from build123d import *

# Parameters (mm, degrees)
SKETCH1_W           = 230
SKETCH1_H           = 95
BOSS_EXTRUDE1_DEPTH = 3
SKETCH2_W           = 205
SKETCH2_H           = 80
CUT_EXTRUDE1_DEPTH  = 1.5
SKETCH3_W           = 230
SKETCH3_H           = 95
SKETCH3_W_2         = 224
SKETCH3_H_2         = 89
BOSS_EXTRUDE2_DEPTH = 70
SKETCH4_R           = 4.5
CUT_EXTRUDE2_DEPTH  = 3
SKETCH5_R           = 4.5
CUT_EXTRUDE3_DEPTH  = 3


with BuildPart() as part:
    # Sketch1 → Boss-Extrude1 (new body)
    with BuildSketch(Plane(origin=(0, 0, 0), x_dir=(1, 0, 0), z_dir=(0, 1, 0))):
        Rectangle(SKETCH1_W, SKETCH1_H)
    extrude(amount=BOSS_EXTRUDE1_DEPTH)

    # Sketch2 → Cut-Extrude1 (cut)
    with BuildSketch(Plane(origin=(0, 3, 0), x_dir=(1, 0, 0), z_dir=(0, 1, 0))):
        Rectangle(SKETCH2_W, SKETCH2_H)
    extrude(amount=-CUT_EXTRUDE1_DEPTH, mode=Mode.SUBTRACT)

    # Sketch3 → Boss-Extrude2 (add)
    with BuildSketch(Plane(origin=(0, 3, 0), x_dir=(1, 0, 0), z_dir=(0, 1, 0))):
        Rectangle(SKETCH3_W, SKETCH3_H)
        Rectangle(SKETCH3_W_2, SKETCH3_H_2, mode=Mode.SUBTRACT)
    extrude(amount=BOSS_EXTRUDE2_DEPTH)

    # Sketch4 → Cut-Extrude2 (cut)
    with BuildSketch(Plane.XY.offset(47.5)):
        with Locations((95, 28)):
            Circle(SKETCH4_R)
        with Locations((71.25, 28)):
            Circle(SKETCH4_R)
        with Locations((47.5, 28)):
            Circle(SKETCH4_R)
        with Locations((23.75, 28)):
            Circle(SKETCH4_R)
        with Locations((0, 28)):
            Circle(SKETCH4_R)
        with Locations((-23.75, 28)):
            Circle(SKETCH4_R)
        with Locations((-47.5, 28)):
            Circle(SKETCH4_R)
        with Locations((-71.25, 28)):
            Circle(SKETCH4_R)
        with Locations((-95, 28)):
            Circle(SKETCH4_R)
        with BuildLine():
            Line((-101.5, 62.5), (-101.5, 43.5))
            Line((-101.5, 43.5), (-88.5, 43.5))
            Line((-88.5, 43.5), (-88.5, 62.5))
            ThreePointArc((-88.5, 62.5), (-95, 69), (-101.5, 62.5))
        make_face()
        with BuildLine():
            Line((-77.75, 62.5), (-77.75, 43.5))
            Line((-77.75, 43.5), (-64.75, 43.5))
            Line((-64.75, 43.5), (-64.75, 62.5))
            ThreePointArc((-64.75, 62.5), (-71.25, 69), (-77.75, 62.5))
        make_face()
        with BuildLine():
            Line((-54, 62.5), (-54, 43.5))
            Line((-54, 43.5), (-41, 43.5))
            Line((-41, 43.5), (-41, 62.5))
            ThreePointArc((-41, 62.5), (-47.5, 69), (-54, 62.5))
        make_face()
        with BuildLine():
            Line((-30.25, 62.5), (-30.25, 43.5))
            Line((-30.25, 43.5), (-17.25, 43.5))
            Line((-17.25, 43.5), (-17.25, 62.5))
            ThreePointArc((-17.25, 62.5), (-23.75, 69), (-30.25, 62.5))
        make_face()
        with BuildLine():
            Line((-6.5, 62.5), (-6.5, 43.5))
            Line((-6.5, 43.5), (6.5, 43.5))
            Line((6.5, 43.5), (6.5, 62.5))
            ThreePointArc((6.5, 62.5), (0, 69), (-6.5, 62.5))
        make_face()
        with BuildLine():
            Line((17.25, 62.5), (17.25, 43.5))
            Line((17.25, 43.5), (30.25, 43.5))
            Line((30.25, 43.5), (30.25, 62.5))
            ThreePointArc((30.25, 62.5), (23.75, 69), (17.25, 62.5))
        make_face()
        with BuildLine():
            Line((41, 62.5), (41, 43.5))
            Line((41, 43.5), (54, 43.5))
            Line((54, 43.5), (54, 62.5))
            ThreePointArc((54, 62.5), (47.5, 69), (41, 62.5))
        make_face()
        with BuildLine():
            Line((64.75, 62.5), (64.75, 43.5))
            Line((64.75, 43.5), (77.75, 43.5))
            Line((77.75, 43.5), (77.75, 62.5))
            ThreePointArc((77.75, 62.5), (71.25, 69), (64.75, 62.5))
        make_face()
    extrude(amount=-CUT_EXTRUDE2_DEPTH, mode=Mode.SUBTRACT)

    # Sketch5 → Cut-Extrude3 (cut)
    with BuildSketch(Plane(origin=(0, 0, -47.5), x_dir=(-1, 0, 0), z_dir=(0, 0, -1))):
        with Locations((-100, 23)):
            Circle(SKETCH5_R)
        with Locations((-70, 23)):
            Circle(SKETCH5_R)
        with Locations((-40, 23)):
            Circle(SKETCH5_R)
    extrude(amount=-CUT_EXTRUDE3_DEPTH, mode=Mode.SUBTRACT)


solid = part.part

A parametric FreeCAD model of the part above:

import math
import FreeCAD as App
import Part
import Sketcher
from FreeCAD import Vector

doc = App.newDocument("Part")
body = doc.addObject("PartDesign::Body", "Body")

# Sketch on XZ plane
sketch1 = body.newObject("Sketcher::SketchObject", "Sketch")
sketch1.AttachmentSupport = (doc.getObject("XZ_Plane"), [""])
sketch1.MapMode = "FlatFace"
sketch1.addGeometry([
    Part.LineSegment(Vector(-115, -48, 0), Vector(-115, 48, 0)),
    Part.LineSegment(Vector(-115, 48, 0), Vector(115, 48, 0)),
    Part.LineSegment(Vector(115, 48, 0), Vector(115, -48, 0)),
    Part.LineSegment(Vector(115, -48, 0), Vector(-115, -48, 0)),
], False)
sketch1.addConstraint([
    Sketcher.Constraint("Coincident", 0, 2, 1, 1),
    Sketcher.Constraint("Coincident", 1, 2, 2, 1),
    Sketcher.Constraint("Coincident", 2, 2, 3, 1),
    Sketcher.Constraint("Coincident", 3, 2, 0, 1),
    Sketcher.Constraint("Vertical", 0),
    Sketcher.Constraint("Horizontal", 1),
    Sketcher.Constraint("Vertical", 2),
    Sketcher.Constraint("Horizontal", 3),
    Sketcher.Constraint("Symmetric", 0, 2, 2, 2, -1, 1),
    Sketcher.Constraint("DistanceX", 1, 1, 1, 2, 230.0),
    Sketcher.Constraint("DistanceY", 0, 1, 0, 2, 95.0),
])
pad1 = body.newObject("PartDesign::Pad", "Pad")
pad1.Profile = sketch1
pad1.Length = 3
pad1.Reversed = True

# Sketch on XZ plane
sketch2 = body.newObject("Sketcher::SketchObject", "Sketch001")
sketch2.AttachmentSupport = (doc.getObject("XZ_Plane"), [""])
sketch2.MapMode = "FlatFace"
sketch2.AttachmentOffset = App.Placement(Vector(0, 0, -3), App.Rotation())
sketch2.addGeometry([
    Part.LineSegment(Vector(-102, -40, 0), Vector(-102, 40, 0)),
    Part.LineSegment(Vector(-102, 40, 0), Vector(102, 40, 0)),
    Part.LineSegment(Vector(102, 40, 0), Vector(102, -40, 0)),
    Part.LineSegment(Vector(102, -40, 0), Vector(-102, -40, 0)),
], False)
sketch2.addConstraint([
    Sketcher.Constraint("Coincident", 0, 2, 1, 1),
    Sketcher.Constraint("Coincident", 1, 2, 2, 1),
    Sketcher.Constraint("Coincident", 2, 2, 3, 1),
    Sketcher.Constraint("Coincident", 3, 2, 0, 1),
    Sketcher.Constraint("Vertical", 0),
    Sketcher.Constraint("Horizontal", 1),
    Sketcher.Constraint("Vertical", 2),
    Sketcher.Constraint("Horizontal", 3),
    Sketcher.Constraint("Symmetric", 0, 2, 2, 2, -1, 1),
    Sketcher.Constraint("DistanceX", 1, 1, 1, 2, 205.0),
    Sketcher.Constraint("DistanceY", 0, 1, 0, 2, 80.0),
])
pocket1 = body.newObject("PartDesign::Pocket", "Pocket")
pocket1.Profile = sketch2
pocket1.Length = 1.5
pocket1.Reversed = True

# Sketch on XZ plane
sketch3 = body.newObject("Sketcher::SketchObject", "Sketch002")
sketch3.AttachmentSupport = (doc.getObject("XZ_Plane"), [""])
sketch3.MapMode = "FlatFace"
sketch3.AttachmentOffset = App.Placement(Vector(0, 0, -3), App.Rotation())
sketch3.addGeometry([
    Part.LineSegment(Vector(-115, -48, 0), Vector(-115, 48, 0)),  # 0
    Part.LineSegment(Vector(-115, 48, 0), Vector(115, 48, 0)),  # 1
    Part.LineSegment(Vector(115, 48, 0), Vector(115, -48, 0)),  # 2
    Part.LineSegment(Vector(115, -48, 0), Vector(-115, -48, 0)),  # 3
    Part.LineSegment(Vector(112, 44, 0), Vector(-112, 44, 0)),  # 4
    Part.LineSegment(Vector(-112, 44, 0), Vector(-112, -44, 0)),  # 5
    Part.LineSegment(Vector(-112, -44, 0), Vector(112, -44, 0)),  # 6
    Part.LineSegment(Vector(112, -44, 0), Vector(112, 44, 0)),  # 7
], False)
sketch3.addConstraint([
    Sketcher.Constraint("Coincident", 0, 2, 1, 1),
    Sketcher.Constraint("Coincident", 1, 2, 2, 1),
    Sketcher.Constraint("Coincident", 2, 2, 3, 1),
    Sketcher.Constraint("Coincident", 3, 2, 0, 1),
    Sketcher.Constraint("Coincident", 4, 2, 5, 1),
    Sketcher.Constraint("Coincident", 5, 2, 6, 1),
    Sketcher.Constraint("Coincident", 6, 2, 7, 1),
    Sketcher.Constraint("Coincident", 7, 2, 4, 1),
    Sketcher.Constraint("Vertical", 0),
    Sketcher.Constraint("Horizontal", 1),
    Sketcher.Constraint("Vertical", 2),
    Sketcher.Constraint("Horizontal", 3),
    Sketcher.Constraint("Horizontal", 4),
    Sketcher.Constraint("Vertical", 5),
    Sketcher.Constraint("Horizontal", 6),
    Sketcher.Constraint("Vertical", 7),
    Sketcher.Constraint("Symmetric", 0, 2, 2, 2, -1, 1),
    Sketcher.Constraint("Symmetric", 4, 2, 6, 2, -1, 1),
    Sketcher.Constraint("DistanceX", 1, 1, 1, 2, 230.0),
    Sketcher.Constraint("DistanceX", 4, 2, 4, 1, 224.0),
    Sketcher.Constraint("DistanceY", 0, 1, 0, 2, 95.0),
    Sketcher.Constraint("DistanceY", 5, 2, 5, 1, 89.0),
])
pad2 = body.newObject("PartDesign::Pad", "Pad001")
pad2.Profile = sketch3
pad2.Length = 70
pad2.Reversed = True

# Sketch on XY plane
sketch4 = body.newObject("Sketcher::SketchObject", "Sketch003")
sketch4.AttachmentSupport = (doc.getObject("XY_Plane"), [""])
sketch4.MapMode = "FlatFace"
sketch4.AttachmentOffset = App.Placement(Vector(0, 0, 47.5), App.Rotation())
sketch4.addGeometry([
    Part.Circle(Vector(95, 28, 0), Vector(0, 0, 1), 4.5),  # 0
    Part.Circle(Vector(71.2, 28, 0), Vector(0, 0, 1), 4.5),  # 1
    Part.Circle(Vector(47.5, 28, 0), Vector(0, 0, 1), 4.5),  # 2
    Part.Circle(Vector(23.8, 28, 0), Vector(0, 0, 1), 4.5),  # 3
    Part.Circle(Vector(0, 28, 0), Vector(0, 0, 1), 4.5),  # 4
    Part.Circle(Vector(-23.8, 28, 0), Vector(0, 0, 1), 4.5),  # 5
    Part.Circle(Vector(-47.5, 28, 0), Vector(0, 0, 1), 4.5),  # 6
    Part.Circle(Vector(-71.2, 28, 0), Vector(0, 0, 1), 4.5),  # 7
    Part.Circle(Vector(-95, 28, 0), Vector(0, 0, 1), 4.5),  # 8
    Part.LineSegment(Vector(-101.5, 62.5, 0), Vector(-101.5, 43.5, 0)),  # 9
    Part.LineSegment(Vector(-101.5, 43.5, 0), Vector(-88.5, 43.5, 0)),  # 10
    Part.LineSegment(Vector(-88.5, 43.5, 0), Vector(-88.5, 62.5, 0)),  # 11
    Part.ArcOfCircle(Part.Circle(Vector(-95, 62.5, 0), Vector(0, 0, 1), 6.5), math.radians(0), math.radians(180)),  # 12
    Part.LineSegment(Vector(-77.8, 62.5, 0), Vector(-77.8, 43.5, 0)),  # 13
    Part.LineSegment(Vector(-77.8, 43.5, 0), Vector(-64.8, 43.5, 0)),  # 14
    Part.LineSegment(Vector(-64.8, 43.5, 0), Vector(-64.8, 62.5, 0)),  # 15
    Part.ArcOfCircle(Part.Circle(Vector(-71.2, 62.5, 0), Vector(0, 0, 1), 6.5), math.radians(0), math.radians(180)),  # 16
    Part.LineSegment(Vector(-54, 62.5, 0), Vector(-54, 43.5, 0)),  # 17
    Part.LineSegment(Vector(-54, 43.5, 0), Vector(-41, 43.5, 0)),  # 18
    Part.LineSegment(Vector(-41, 43.5, 0), Vector(-41, 62.5, 0)),  # 19
    Part.ArcOfCircle(Part.Circle(Vector(-47.5, 62.5, 0), Vector(0, 0, 1), 6.5), math.radians(0), math.radians(180)),  # 20
    Part.LineSegment(Vector(-30.2, 62.5, 0), Vector(-30.2, 43.5, 0)),  # 21
    Part.LineSegment(Vector(-30.2, 43.5, 0), Vector(-17.2, 43.5, 0)),  # 22
    Part.LineSegment(Vector(-17.2, 43.5, 0), Vector(-17.2, 62.5, 0)),  # 23
    Part.ArcOfCircle(Part.Circle(Vector(-23.8, 62.5, 0), Vector(0, 0, 1), 6.5), math.radians(0), math.radians(180)),  # 24
    Part.LineSegment(Vector(-6.5, 62.5, 0), Vector(-6.5, 43.5, 0)),  # 25
    Part.LineSegment(Vector(-6.5, 43.5, 0), Vector(6.5, 43.5, 0)),  # 26
    Part.LineSegment(Vector(6.5, 43.5, 0), Vector(6.5, 62.5, 0)),  # 27
    Part.ArcOfCircle(Part.Circle(Vector(0, 62.5, 0), Vector(0, 0, 1), 6.5), math.radians(0), math.radians(180)),  # 28
    Part.LineSegment(Vector(17.2, 62.5, 0), Vector(17.2, 43.5, 0)),  # 29
    Part.LineSegment(Vector(17.2, 43.5, 0), Vector(30.2, 43.5, 0)),  # 30
    Part.LineSegment(Vector(30.2, 43.5, 0), Vector(30.2, 62.5, 0)),  # 31
    Part.ArcOfCircle(Part.Circle(Vector(23.8, 62.5, 0), Vector(0, 0, 1), 6.5), math.radians(0), math.radians(180)),  # 32
    Part.LineSegment(Vector(41, 62.5, 0), Vector(41, 43.5, 0)),  # 33
    Part.LineSegment(Vector(41, 43.5, 0), Vector(54, 43.5, 0)),  # 34
    Part.LineSegment(Vector(54, 43.5, 0), Vector(54, 62.5, 0)),  # 35
    Part.ArcOfCircle(Part.Circle(Vector(47.5, 62.5, 0), Vector(0, 0, 1), 6.5), math.radians(0), math.radians(180)),  # 36
    Part.LineSegment(Vector(64.8, 62.5, 0), Vector(64.8, 43.5, 0)),  # 37
    Part.LineSegment(Vector(64.8, 43.5, 0), Vector(77.8, 43.5, 0)),  # 38
    Part.LineSegment(Vector(77.8, 43.5, 0), Vector(77.8, 62.5, 0)),  # 39
    Part.ArcOfCircle(Part.Circle(Vector(71.2, 62.5, 0), Vector(0, 0, 1), 6.5), math.radians(0), math.radians(180)),  # 40
], False)
sketch4.addConstraint([
    Sketcher.Constraint("Coincident", 9, 2, 10, 1),
    Sketcher.Constraint("Coincident", 10, 2, 11, 1),
    Sketcher.Constraint("Tangent", 11, 2, 12, 1),
    Sketcher.Constraint("Tangent", 12, 2, 9, 1),
    Sketcher.Constraint("Coincident", 13, 2, 14, 1),
    Sketcher.Constraint("Coincident", 14, 2, 15, 1),
    Sketcher.Constraint("Tangent", 15, 2, 16, 1),
    Sketcher.Constraint("Tangent", 16, 2, 13, 1),
    Sketcher.Constraint("Coincident", 17, 2, 18, 1),
    Sketcher.Constraint("Coincident", 18, 2, 19, 1),
    Sketcher.Constraint("Tangent", 19, 2, 20, 1),
    Sketcher.Constraint("Tangent", 20, 2, 17, 1),
    Sketcher.Constraint("Coincident", 21, 2, 22, 1),
    Sketcher.Constraint("Coincident", 22, 2, 23, 1),
    Sketcher.Constraint("Tangent", 23, 2, 24, 1),
    Sketcher.Constraint("Tangent", 24, 2, 21, 1),
    Sketcher.Constraint("Coincident", 25, 2, 26, 1),
    Sketcher.Constraint("Coincident", 26, 2, 27, 1),
    Sketcher.Constraint("Tangent", 27, 2, 28, 1),
    Sketcher.Constraint("Tangent", 28, 2, 25, 1),
    Sketcher.Constraint("Coincident", 29, 2, 30, 1),
    Sketcher.Constraint("Coincident", 30, 2, 31, 1),
    Sketcher.Constraint("Tangent", 31, 2, 32, 1),
    Sketcher.Constraint("Tangent", 32, 2, 29, 1),
    Sketcher.Constraint("Coincident", 33, 2, 34, 1),
    Sketcher.Constraint("Coincident", 34, 2, 35, 1),
    Sketcher.Constraint("Tangent", 35, 2, 36, 1),
    Sketcher.Constraint("Tangent", 36, 2, 33, 1),
    Sketcher.Constraint("Coincident", 37, 2, 38, 1),
    Sketcher.Constraint("Coincident", 38, 2, 39, 1),
    Sketcher.Constraint("Tangent", 39, 2, 40, 1),
    Sketcher.Constraint("Tangent", 40, 2, 37, 1),
    Sketcher.Constraint("Vertical", 9),
    Sketcher.Constraint("Horizontal", 10),
    Sketcher.Constraint("Vertical", 11),
    Sketcher.Constraint("Vertical", 13),
    Sketcher.Constraint("Horizontal", 14),
    Sketcher.Constraint("Vertical", 15),
    Sketcher.Constraint("Vertical", 17),
    Sketcher.Constraint("Horizontal", 18),
    Sketcher.Constraint("Vertical", 19),
    Sketcher.Constraint("Vertical", 21),
    Sketcher.Constraint("Horizontal", 22),
    Sketcher.Constraint("Vertical", 23),
    Sketcher.Constraint("Vertical", 25),
    Sketcher.Constraint("Horizontal", 26),
    Sketcher.Constraint("Vertical", 27),
    Sketcher.Constraint("Vertical", 29),
    Sketcher.Constraint("Horizontal", 30),
    Sketcher.Constraint("Vertical", 31),
    Sketcher.Constraint("Vertical", 33),
    Sketcher.Constraint("Horizontal", 34),
    Sketcher.Constraint("Vertical", 35),
    Sketcher.Constraint("Vertical", 37),
    Sketcher.Constraint("Horizontal", 38),
    Sketcher.Constraint("Vertical", 39),
    Sketcher.Constraint("Equal", 0, 1),
    Sketcher.Constraint("Equal", 1, 2),
    Sketcher.Constraint("Equal", 2, 3),
    Sketcher.Constraint("Equal", 3, 4),
    Sketcher.Constraint("Equal", 4, 5),
    Sketcher.Constraint("Equal", 5, 6),
    Sketcher.Constraint("Equal", 6, 7),
    Sketcher.Constraint("Equal", 7, 8),
    Sketcher.Constraint("Equal", 12, 16),
    Sketcher.Constraint("Equal", 16, 20),
    Sketcher.Constraint("Equal", 20, 24),
    Sketcher.Constraint("Equal", 24, 28),
    Sketcher.Constraint("Equal", 28, 32),
    Sketcher.Constraint("Equal", 32, 36),
    Sketcher.Constraint("Equal", 36, 40),
    Sketcher.Constraint("Symmetric", 3, 3, 5, 3, -2),
    Sketcher.Constraint("Symmetric", 2, 3, 6, 3, -2),
    Sketcher.Constraint("Symmetric", 1, 3, 7, 3, -2),
    Sketcher.Constraint("Symmetric", 0, 3, 8, 3, -2),
    Sketcher.Constraint("Symmetric", 24, 3, 32, 3, -2),
    Sketcher.Constraint("Symmetric", 20, 3, 36, 3, -2),
    Sketcher.Constraint("Symmetric", 16, 3, 40, 3, -2),
    Sketcher.Constraint("PointOnObject", 4, 3, -2),
    Sketcher.Constraint("PointOnObject", 28, 3, -2),
    Sketcher.Constraint("Horizontal", 0, 3, 1, 3),
    Sketcher.Constraint("Horizontal", 1, 3, 2, 3),
    Sketcher.Constraint("Horizontal", 2, 3, 3, 3),
    Sketcher.Constraint("Horizontal", 3, 3, 4, 3),
    Sketcher.Constraint("Horizontal", 12, 3, 16, 3),
    Sketcher.Constraint("Horizontal", 16, 3, 20, 3),
    Sketcher.Constraint("Horizontal", 20, 3, 24, 3),
    Sketcher.Constraint("Horizontal", 24, 3, 28, 3),
    Sketcher.Constraint("Horizontal", 10, 2, 13, 2),
    Sketcher.Constraint("Horizontal", 14, 2, 17, 2),
    Sketcher.Constraint("Horizontal", 18, 2, 21, 2),
    Sketcher.Constraint("Horizontal", 22, 2, 25, 2),
    Sketcher.Constraint("Horizontal", 26, 2, 29, 2),
    Sketcher.Constraint("Horizontal", 30, 2, 33, 2),
    Sketcher.Constraint("Horizontal", 34, 2, 37, 2),
    Sketcher.Constraint("Vertical", 8, 3, 12, 3),
    Sketcher.Constraint("Vertical", 7, 3, 16, 3),
    Sketcher.Constraint("Vertical", 6, 3, 20, 3),
    Sketcher.Constraint("Vertical", 5, 3, 24, 3),
    Sketcher.Constraint("Diameter", 0, 9.0),
    Sketcher.Constraint("Radius", 12, 6.5),
    Sketcher.Constraint("DistanceY", 9, 2, 9, 1, 19.0),
    Sketcher.Constraint("DistanceX", -1, 1, 0, 3, 95.0),
    Sketcher.Constraint("DistanceY", -1, 1, 0, 3, 28.0),
    Sketcher.Constraint("DistanceX", 17, 2, -1, 1, 54.0),
    Sketcher.Constraint("DistanceX", 5, 3, 1, 3, 95.0),
    Sketcher.Constraint("DistanceY", -1, 1, 12, 3, 62.5),
    Sketcher.Constraint("DistanceX", 3, 3, 1, 3, 47.5),
])
pocket2 = body.newObject("PartDesign::Pocket", "Pocket001")
pocket2.Profile = sketch4
pocket2.Length = 3

# Sketch on XY plane
sketch5 = body.newObject("Sketcher::SketchObject", "Sketch004")
sketch5.AttachmentSupport = (doc.getObject("XY_Plane"), [""])
sketch5.MapMode = "FlatFace"
sketch5.AttachmentOffset = App.Placement(Vector(0, 0, -47.5), App.Rotation())
sketch5.addGeometry([
    Part.Circle(Vector(100, 23, 0), Vector(0, 0, 1), 4.5),
    Part.Circle(Vector(70, 23, 0), Vector(0, 0, 1), 4.5),
    Part.Circle(Vector(40, 23, 0), Vector(0, 0, 1), 4.5),
], False)
sketch5.addConstraint([
    Sketcher.Constraint("Equal", 0, 1),
    Sketcher.Constraint("Equal", 1, 2),
    Sketcher.Constraint("Horizontal", 0, 3, 1, 3),
    Sketcher.Constraint("Horizontal", 1, 3, 2, 3),
    Sketcher.Constraint("Diameter", 0, 9.0),
    Sketcher.Constraint("DistanceX", -1, 1, 0, 3, 100.0),
    Sketcher.Constraint("DistanceY", -1, 1, 0, 3, 23.0),
    Sketcher.Constraint("DistanceX", -1, 1, 1, 3, 70.0),
    Sketcher.Constraint("DistanceX", -1, 1, 2, 3, 40.0),
])
pocket3 = body.newObject("PartDesign::Pocket", "Pocket002")
pocket3.Profile = sketch5
pocket3.Length = 3
pocket3.Reversed = True

doc.recompute()
